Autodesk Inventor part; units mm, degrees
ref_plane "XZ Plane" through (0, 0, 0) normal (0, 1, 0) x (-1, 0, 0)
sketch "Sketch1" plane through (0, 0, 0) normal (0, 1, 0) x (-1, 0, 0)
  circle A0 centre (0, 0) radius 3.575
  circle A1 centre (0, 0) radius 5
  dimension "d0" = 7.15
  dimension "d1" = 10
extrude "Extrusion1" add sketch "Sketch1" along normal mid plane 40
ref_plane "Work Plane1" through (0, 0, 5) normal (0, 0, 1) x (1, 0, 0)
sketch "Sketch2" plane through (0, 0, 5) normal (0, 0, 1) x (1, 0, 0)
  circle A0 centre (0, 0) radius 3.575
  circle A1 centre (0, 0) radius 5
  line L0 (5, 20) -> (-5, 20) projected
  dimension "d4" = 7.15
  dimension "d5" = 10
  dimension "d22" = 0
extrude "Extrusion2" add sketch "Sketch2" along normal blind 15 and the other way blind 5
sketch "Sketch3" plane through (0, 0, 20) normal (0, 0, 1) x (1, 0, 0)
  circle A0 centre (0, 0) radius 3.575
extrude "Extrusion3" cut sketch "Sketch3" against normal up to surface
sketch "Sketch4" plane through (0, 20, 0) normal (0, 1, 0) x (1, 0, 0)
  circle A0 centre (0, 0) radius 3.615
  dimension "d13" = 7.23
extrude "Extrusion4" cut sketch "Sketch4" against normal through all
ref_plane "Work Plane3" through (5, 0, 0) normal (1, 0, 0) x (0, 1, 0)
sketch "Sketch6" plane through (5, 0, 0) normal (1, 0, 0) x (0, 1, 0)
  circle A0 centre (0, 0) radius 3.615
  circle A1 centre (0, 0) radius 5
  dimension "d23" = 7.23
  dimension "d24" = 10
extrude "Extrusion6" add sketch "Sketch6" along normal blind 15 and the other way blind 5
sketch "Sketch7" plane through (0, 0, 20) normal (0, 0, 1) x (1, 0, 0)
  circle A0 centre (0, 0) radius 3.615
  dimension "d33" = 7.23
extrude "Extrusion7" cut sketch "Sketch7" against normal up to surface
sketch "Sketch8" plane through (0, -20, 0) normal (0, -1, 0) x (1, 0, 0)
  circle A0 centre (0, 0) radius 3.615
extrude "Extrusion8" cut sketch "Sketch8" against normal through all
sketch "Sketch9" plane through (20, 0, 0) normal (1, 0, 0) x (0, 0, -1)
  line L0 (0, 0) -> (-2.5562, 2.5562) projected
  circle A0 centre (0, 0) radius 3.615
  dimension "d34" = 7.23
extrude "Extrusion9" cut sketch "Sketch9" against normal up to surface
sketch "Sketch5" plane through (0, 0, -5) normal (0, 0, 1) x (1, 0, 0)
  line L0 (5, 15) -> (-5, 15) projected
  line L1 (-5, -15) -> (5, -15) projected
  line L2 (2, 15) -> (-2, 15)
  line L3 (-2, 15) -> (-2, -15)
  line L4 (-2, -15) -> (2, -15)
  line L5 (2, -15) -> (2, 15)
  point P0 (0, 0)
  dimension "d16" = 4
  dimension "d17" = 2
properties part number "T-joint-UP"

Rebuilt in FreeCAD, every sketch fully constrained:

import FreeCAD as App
import Part
import Sketcher
Q = App.Units.Quantity

doc = App.newDocument("Part")
body = doc.addObject("PartDesign::Body", "Body")

sketch1 = body.newObject("Sketcher::SketchObject", "Sketch")
sketch1.AttachmentSupport = (doc.getObject("XZ_Plane"), [""])
sketch1.MapMode = "FlatFace"
sketch1.addGeometry(Part.Circle(App.Vector(0, 0, 0), App.Vector(0, 0, 1), 5), False)
sketch1.addGeometry(Part.Circle(App.Vector(0, 0, 0), App.Vector(0, 0, 1), 3.6), False)
sketch1.addConstraint(Sketcher.Constraint("Coincident", 0, 3, -1, 1))
sketch1.addConstraint(Sketcher.Constraint("Coincident", 1, 3, -1, 1))
sketch1.addConstraint(Sketcher.Constraint("Diameter", 0, Q("10 mm")))
sketch1.addConstraint(Sketcher.Constraint("Diameter", 1, Q("7.15 mm")))
pad1 = body.newObject("PartDesign::Pad", "Pad")
pad1.Profile = sketch1
pad1.Length = 40
pad1.Midplane = True

sketch2 = body.newObject("Sketcher::SketchObject", "Sketch001")
sketch2.AttachmentSupport = (doc.getObject("XY_Plane"), [""])
sketch2.MapMode = "FlatFace"
sketch2.AttachmentOffset = App.Placement(App.Vector(0, 0, 5), App.Rotation())
sketch2.addGeometry(Part.Circle(App.Vector(0, 0, 0), App.Vector(0, 0, 1), 5), False)
sketch2.addGeometry(Part.Circle(App.Vector(0, 0, 0), App.Vector(0, 0, 1), 3.6), False)
sketch2.addConstraint(Sketcher.Constraint("Coincident", 0, 3, -1, 1))
sketch2.addConstraint(Sketcher.Constraint("Coincident", 1, 3, -1, 1))
sketch2.addConstraint(Sketcher.Constraint("Diameter", 0, Q("10 mm")))
sketch2.addConstraint(Sketcher.Constraint("Diameter", 1, Q("7.15 mm")))
pad2 = body.newObject("PartDesign::Pad", "Pad001")
pad2.Profile = sketch2
pad2.Type = "TwoLengths"
pad2.Length = 15
pad2.Length2 = 5

sketch3 = body.newObject("Sketcher::SketchObject", "Sketch002")
sketch3.AttachmentSupport = (doc.getObject("XY_Plane"), [""])
sketch3.MapMode = "FlatFace"
sketch3.AttachmentOffset = App.Placement(App.Vector(0, 0, 20), App.Rotation())
sketch3.addGeometry(Part.Circle(App.Vector(0, 0, 0), App.Vector(0, 0, 1), 3.6), False)
sketch3.addConstraint(Sketcher.Constraint("Coincident", 0, 3, -1, 1))
sketch3.addConstraint(Sketcher.Constraint("Diameter", 0, Q("7.15 mm")))
pocket1 = body.newObject("PartDesign::Pocket", "Pocket")
pocket1.Profile = sketch3
pocket1.Length = 20

sketch4 = body.newObject("Sketcher::SketchObject", "Sketch003")
sketch4.AttachmentSupport = (doc.getObject("XZ_Plane"), [""])
sketch4.MapMode = "FlatFace"
sketch4.AttachmentOffset = App.Placement(App.Vector(0, 0, -20), App.Rotation())
sketch4.addGeometry(Part.Circle(App.Vector(0, 0, 0), App.Vector(0, 0, 1), 3.6), False)
sketch4.addConstraint(Sketcher.Constraint("Coincident", 0, 3, -1, 1))
sketch4.addConstraint(Sketcher.Constraint("Diameter", 0, Q("7.23 mm")))
pocket2 = body.newObject("PartDesign::Pocket", "Pocket001")
pocket2.Profile = sketch4
pocket2.Type = "ThroughAll"
pocket2.Reversed = True

sketch5 = body.newObject("Sketcher::SketchObject", "Sketch004")
sketch5.AttachmentSupport = (doc.getObject("YZ_Plane"), [""])
sketch5.MapMode = "FlatFace"
sketch5.AttachmentOffset = App.Placement(App.Vector(0, 0, 5), App.Rotation())
sketch5.addGeometry(Part.Circle(App.Vector(0, 0, 0), App.Vector(0, 0, 1), 5), False)
sketch5.addGeometry(Part.Circle(App.Vector(0, 0, 0), App.Vector(0, 0, 1), 3.6), False)
sketch5.addConstraint(Sketcher.Constraint("Coincident", 0, 3, -1, 1))
sketch5.addConstraint(Sketcher.Constraint("Coincident", 1, 3, -1, 1))
sketch5.addConstraint(Sketcher.Constraint("Diameter", 0, Q("10 mm")))
sketch5.addConstraint(Sketcher.Constraint("Diameter", 1, Q("7.23 mm")))
pad3 = body.newObject("PartDesign::Pad", "Pad002")
pad3.Profile = sketch5
pad3.Type = "TwoLengths"
pad3.Length = 15
pad3.Length2 = 5

sketch6 = body.newObject("Sketcher::SketchObject", "Sketch005")
sketch6.AttachmentSupport = (doc.getObject("XY_Plane"), [""])
sketch6.MapMode = "FlatFace"
sketch6.AttachmentOffset = App.Placement(App.Vector(0, 0, 20), App.Rotation())
sketch6.addGeometry(Part.Circle(App.Vector(0, 0, 0), App.Vector(0, 0, 1), 3.6), False)
sketch6.addConstraint(Sketcher.Constraint("Coincident", 0, 3, -1, 1))
sketch6.addConstraint(Sketcher.Constraint("Diameter", 0, Q("7.23 mm")))
pocket3 = body.newObject("PartDesign::Pocket", "Pocket002")
pocket3.Profile = sketch6
pocket3.Length = 20

sketch7 = body.newObject("Sketcher::SketchObject", "Sketch006")
sketch7.AttachmentSupport = (doc.getObject("XZ_Plane"), [""])
sketch7.MapMode = "FlatFace"
sketch7.AttachmentOffset = App.Placement(App.Vector(0, 0, 20), App.Rotation())
sketch7.addGeometry(Part.Circle(App.Vector(0, 0, 0), App.Vector(0, 0, 1), 3.6), False)
sketch7.addConstraint(Sketcher.Constraint("Coincident", 0, 3, -1, 1))
sketch7.addConstraint(Sketcher.Constraint("Diameter", 0, Q("7.23 mm")))
pocket4 = body.newObject("PartDesign::Pocket", "Pocket003")
pocket4.Profile = sketch7
pocket4.Type = "ThroughAll"

sketch8 = body.newObject("Sketcher::SketchObject", "Sketch007")
sketch8.AttachmentSupport = (doc.getObject("YZ_Plane"), [""])
sketch8.MapMode = "FlatFace"
sketch8.AttachmentOffset = App.Placement(App.Vector(0, 0, 20), App.Rotation())
sketch8.addGeometry(Part.Circle(App.Vector(0, 0, 0), App.Vector(0, 0, 1), 3.6), False)
sketch8.addConstraint(Sketcher.Constraint("Coincident", 0, 3, -1, 1))
sketch8.addConstraint(Sketcher.Constraint("Diameter", 0, Q("7.23 mm")))
pocket5 = body.newObject("PartDesign::Pocket", "Pocket004")
pocket5.Profile = sketch8
pocket5.Length = 20

doc.recompute()
